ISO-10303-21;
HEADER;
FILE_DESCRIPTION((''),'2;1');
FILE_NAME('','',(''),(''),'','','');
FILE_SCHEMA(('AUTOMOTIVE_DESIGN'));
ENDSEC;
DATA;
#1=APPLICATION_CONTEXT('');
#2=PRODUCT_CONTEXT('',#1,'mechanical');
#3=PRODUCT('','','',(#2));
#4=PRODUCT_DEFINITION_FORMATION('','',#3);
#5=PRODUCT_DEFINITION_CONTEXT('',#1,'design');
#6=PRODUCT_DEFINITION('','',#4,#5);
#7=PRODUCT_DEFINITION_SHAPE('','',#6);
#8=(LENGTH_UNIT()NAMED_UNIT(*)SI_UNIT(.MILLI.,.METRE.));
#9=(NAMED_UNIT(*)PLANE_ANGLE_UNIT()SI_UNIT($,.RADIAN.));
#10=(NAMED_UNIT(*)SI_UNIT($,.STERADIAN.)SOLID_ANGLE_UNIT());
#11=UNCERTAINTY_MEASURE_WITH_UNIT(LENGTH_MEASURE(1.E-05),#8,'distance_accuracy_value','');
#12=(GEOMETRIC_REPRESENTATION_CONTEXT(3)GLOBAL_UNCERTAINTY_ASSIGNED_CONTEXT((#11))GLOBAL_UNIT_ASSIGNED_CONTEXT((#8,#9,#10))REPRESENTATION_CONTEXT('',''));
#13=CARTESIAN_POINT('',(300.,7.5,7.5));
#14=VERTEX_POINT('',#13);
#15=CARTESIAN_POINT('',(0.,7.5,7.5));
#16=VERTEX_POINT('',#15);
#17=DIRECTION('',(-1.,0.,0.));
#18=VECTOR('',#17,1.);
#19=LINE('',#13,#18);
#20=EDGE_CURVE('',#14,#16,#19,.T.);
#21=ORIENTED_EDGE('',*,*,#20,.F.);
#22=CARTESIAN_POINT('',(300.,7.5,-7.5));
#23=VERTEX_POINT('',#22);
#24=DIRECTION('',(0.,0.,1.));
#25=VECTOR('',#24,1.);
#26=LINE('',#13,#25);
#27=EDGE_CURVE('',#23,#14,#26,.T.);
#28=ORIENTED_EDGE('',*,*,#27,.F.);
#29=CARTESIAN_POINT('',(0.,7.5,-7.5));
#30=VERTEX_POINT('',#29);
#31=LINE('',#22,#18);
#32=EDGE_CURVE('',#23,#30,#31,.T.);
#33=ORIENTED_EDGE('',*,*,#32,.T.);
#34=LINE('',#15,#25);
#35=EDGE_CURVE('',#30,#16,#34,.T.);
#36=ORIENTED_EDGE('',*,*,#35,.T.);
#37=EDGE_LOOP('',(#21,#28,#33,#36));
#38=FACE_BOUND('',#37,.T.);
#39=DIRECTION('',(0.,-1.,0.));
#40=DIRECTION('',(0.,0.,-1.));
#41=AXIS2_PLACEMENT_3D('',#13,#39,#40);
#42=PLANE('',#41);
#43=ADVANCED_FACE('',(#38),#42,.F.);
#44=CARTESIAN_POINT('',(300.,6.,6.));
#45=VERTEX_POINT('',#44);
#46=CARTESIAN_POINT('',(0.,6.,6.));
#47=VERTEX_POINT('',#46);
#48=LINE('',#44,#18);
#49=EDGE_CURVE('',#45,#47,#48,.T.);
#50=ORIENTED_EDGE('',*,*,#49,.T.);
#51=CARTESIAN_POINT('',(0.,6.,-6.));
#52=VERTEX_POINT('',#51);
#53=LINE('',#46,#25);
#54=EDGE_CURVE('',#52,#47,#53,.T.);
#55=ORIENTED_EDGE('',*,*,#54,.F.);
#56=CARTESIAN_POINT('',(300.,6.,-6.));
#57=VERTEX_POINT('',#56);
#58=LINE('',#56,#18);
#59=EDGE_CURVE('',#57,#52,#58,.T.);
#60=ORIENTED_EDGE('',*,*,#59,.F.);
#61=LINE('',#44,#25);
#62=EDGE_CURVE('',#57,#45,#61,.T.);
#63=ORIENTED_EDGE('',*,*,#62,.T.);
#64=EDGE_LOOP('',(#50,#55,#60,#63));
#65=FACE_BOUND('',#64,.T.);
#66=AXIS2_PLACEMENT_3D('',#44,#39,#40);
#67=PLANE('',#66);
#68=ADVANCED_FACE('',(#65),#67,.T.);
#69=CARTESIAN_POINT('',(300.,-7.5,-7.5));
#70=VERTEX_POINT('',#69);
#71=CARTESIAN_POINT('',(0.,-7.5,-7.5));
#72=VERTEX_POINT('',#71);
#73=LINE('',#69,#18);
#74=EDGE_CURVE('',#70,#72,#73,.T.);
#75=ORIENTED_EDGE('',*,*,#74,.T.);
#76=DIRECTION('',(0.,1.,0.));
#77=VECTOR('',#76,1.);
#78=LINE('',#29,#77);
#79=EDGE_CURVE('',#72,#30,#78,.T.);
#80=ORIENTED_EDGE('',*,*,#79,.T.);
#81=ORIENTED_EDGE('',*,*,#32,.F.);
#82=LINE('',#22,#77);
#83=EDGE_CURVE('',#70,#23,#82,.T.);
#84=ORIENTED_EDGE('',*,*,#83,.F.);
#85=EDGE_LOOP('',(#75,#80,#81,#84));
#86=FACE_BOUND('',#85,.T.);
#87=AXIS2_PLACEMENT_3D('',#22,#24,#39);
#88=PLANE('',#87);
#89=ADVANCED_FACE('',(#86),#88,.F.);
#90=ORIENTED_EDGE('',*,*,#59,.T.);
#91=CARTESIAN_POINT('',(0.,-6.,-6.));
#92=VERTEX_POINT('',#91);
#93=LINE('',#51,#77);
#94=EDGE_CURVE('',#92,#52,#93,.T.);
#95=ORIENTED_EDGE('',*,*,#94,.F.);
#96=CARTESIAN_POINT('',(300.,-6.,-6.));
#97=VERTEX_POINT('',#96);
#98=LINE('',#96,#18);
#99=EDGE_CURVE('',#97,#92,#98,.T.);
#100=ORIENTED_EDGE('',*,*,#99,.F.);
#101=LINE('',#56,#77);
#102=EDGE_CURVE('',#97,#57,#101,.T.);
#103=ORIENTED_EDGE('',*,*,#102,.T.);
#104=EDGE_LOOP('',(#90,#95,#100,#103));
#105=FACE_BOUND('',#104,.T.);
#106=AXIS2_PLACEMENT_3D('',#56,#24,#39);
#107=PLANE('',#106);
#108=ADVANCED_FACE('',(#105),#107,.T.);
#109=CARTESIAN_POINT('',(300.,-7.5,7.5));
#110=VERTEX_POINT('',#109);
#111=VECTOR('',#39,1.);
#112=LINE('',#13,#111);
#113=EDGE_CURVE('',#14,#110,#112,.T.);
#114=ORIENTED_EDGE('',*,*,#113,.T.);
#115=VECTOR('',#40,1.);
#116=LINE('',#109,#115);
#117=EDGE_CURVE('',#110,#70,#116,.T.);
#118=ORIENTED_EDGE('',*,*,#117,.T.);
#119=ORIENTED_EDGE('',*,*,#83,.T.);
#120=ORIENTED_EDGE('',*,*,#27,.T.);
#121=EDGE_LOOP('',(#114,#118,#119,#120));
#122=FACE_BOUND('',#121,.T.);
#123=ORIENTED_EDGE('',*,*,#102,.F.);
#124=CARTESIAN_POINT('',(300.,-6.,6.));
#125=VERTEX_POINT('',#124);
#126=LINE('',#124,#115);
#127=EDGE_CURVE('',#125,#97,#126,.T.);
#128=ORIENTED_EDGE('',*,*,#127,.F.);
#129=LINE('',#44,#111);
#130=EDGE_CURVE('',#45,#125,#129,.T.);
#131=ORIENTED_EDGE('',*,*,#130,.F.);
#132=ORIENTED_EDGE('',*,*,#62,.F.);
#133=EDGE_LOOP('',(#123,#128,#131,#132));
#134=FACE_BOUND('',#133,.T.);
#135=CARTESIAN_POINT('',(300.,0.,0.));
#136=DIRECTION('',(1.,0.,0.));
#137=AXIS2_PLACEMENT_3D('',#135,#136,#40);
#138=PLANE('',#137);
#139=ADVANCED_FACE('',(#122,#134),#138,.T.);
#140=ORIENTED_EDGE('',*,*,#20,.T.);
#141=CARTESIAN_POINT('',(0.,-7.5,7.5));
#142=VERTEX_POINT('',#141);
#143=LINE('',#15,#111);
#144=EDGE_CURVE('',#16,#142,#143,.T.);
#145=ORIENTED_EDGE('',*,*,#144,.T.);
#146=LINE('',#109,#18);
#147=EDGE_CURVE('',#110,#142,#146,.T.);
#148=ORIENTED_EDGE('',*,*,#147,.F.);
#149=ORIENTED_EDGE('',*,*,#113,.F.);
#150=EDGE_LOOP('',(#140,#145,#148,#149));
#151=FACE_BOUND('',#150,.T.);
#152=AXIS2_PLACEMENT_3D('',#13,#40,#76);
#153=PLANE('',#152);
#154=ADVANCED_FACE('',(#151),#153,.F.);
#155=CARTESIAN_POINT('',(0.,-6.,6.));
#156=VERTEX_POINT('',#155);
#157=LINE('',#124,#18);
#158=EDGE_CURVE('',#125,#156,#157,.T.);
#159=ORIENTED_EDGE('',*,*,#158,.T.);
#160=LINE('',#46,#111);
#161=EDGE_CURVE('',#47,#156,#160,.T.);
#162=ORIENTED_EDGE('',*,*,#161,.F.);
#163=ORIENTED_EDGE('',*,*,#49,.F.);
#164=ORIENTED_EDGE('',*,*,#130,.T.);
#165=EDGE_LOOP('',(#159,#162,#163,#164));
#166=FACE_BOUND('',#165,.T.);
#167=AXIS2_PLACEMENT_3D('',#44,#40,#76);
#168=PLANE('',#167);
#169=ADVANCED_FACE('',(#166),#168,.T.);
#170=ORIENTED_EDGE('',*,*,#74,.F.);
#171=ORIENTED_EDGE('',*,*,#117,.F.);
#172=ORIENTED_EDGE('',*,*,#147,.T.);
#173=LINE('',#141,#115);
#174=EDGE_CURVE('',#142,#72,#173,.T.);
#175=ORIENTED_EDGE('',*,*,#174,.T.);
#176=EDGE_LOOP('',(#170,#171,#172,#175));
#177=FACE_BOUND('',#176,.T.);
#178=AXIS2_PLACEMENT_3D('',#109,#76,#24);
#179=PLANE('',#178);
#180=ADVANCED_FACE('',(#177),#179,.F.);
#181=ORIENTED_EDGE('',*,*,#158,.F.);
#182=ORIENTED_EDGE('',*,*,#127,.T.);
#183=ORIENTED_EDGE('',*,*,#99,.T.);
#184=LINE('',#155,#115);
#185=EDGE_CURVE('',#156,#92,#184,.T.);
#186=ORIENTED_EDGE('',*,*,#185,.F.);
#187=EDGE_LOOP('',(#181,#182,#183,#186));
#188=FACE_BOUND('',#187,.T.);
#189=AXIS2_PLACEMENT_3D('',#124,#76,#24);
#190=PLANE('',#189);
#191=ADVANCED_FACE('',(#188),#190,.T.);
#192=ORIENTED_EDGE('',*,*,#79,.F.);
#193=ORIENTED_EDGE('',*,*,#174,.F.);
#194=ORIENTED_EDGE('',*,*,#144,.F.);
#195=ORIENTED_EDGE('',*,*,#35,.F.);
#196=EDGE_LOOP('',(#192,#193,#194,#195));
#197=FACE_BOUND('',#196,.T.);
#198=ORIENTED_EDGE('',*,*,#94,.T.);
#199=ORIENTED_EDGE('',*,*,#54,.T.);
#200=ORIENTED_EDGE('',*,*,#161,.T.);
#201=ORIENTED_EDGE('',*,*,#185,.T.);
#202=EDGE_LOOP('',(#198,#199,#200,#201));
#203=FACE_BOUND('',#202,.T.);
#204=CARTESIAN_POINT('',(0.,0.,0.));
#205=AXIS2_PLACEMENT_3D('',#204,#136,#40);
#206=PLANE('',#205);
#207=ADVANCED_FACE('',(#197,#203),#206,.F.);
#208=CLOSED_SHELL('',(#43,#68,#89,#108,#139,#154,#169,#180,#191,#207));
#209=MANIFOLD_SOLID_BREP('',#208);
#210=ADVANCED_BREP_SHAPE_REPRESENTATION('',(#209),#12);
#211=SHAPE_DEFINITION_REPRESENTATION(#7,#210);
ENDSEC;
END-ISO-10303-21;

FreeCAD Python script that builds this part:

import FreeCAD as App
import Part
import Sketcher

V = App.Vector

doc = App.newDocument("Part")
body = doc.addObject("PartDesign::Body", "Body")

sketch1 = body.newObject("Sketcher::SketchObject", "Sketch")
sketch1.AttachmentSupport = (doc.getObject("YZ_Plane"), [""])
sketch1.MapMode = "FlatFace"
sketch1.addGeometry(Part.LineSegment(V(8, 8, 0), V(-8, 8, 0)), False)
sketch1.addGeometry(Part.LineSegment(V(-8, 8, 0), V(-8, -8, 0)), False)
sketch1.addGeometry(Part.LineSegment(V(-8, -8, 0), V(8, -8, 0)), False)
sketch1.addGeometry(Part.LineSegment(V(8, -8, 0), V(8, 8, 0)), False)
sketch1.addGeometry(Part.LineSegment(V(-6, -6, 0), V(-6, 6, 0)), False)
sketch1.addGeometry(Part.LineSegment(V(-6, 6, 0), V(6, 6, 0)), False)
sketch1.addGeometry(Part.LineSegment(V(6, 6, 0), V(6, -6, 0)), False)
sketch1.addGeometry(Part.LineSegment(V(6, -6, 0), V(-6, -6, 0)), False)
sketch1.addConstraint(Sketcher.Constraint("Coincident", 0, 2, 1, 1))
sketch1.addConstraint(Sketcher.Constraint("Coincident", 1, 2, 2, 1))
sketch1.addConstraint(Sketcher.Constraint("Coincident", 2, 2, 3, 1))
sketch1.addConstraint(Sketcher.Constraint("Coincident", 3, 2, 0, 1))
sketch1.addConstraint(Sketcher.Constraint("Coincident", 4, 2, 5, 1))
sketch1.addConstraint(Sketcher.Constraint("Coincident", 5, 2, 6, 1))
sketch1.addConstraint(Sketcher.Constraint("Coincident", 6, 2, 7, 1))
sketch1.addConstraint(Sketcher.Constraint("Coincident", 7, 2, 4, 1))
sketch1.addConstraint(Sketcher.Constraint("Horizontal", 0))
sketch1.addConstraint(Sketcher.Constraint("Vertical", 1))
sketch1.addConstraint(Sketcher.Constraint("Horizontal", 2))
sketch1.addConstraint(Sketcher.Constraint("Vertical", 3))
sketch1.addConstraint(Sketcher.Constraint("Vertical", 4))
sketch1.addConstraint(Sketcher.Constraint("Horizontal", 5))
sketch1.addConstraint(Sketcher.Constraint("Vertical", 6))
sketch1.addConstraint(Sketcher.Constraint("Horizontal", 7))
sketch1.addConstraint(Sketcher.Constraint("Symmetric", 0, 2, 2, 2, -1, 1))
sketch1.addConstraint(Sketcher.Constraint("Symmetric", 4, 2, 6, 2, -1, 1))
sketch1.addConstraint(Sketcher.Constraint("Equal", 2, 1))
sketch1.addConstraint(Sketcher.Constraint("Equal", 7, 4))
sketch1.addConstraint(Sketcher.Constraint("DistanceX", 0, 2, 0, 1, 15.0))
sketch1.addConstraint(Sketcher.Constraint("DistanceX", 5, 1, 5, 2, 12.0))
pad1 = body.newObject("PartDesign::Pad", "Pad")
pad1.Profile = sketch1
pad1.Length = 300

doc.recompute()
